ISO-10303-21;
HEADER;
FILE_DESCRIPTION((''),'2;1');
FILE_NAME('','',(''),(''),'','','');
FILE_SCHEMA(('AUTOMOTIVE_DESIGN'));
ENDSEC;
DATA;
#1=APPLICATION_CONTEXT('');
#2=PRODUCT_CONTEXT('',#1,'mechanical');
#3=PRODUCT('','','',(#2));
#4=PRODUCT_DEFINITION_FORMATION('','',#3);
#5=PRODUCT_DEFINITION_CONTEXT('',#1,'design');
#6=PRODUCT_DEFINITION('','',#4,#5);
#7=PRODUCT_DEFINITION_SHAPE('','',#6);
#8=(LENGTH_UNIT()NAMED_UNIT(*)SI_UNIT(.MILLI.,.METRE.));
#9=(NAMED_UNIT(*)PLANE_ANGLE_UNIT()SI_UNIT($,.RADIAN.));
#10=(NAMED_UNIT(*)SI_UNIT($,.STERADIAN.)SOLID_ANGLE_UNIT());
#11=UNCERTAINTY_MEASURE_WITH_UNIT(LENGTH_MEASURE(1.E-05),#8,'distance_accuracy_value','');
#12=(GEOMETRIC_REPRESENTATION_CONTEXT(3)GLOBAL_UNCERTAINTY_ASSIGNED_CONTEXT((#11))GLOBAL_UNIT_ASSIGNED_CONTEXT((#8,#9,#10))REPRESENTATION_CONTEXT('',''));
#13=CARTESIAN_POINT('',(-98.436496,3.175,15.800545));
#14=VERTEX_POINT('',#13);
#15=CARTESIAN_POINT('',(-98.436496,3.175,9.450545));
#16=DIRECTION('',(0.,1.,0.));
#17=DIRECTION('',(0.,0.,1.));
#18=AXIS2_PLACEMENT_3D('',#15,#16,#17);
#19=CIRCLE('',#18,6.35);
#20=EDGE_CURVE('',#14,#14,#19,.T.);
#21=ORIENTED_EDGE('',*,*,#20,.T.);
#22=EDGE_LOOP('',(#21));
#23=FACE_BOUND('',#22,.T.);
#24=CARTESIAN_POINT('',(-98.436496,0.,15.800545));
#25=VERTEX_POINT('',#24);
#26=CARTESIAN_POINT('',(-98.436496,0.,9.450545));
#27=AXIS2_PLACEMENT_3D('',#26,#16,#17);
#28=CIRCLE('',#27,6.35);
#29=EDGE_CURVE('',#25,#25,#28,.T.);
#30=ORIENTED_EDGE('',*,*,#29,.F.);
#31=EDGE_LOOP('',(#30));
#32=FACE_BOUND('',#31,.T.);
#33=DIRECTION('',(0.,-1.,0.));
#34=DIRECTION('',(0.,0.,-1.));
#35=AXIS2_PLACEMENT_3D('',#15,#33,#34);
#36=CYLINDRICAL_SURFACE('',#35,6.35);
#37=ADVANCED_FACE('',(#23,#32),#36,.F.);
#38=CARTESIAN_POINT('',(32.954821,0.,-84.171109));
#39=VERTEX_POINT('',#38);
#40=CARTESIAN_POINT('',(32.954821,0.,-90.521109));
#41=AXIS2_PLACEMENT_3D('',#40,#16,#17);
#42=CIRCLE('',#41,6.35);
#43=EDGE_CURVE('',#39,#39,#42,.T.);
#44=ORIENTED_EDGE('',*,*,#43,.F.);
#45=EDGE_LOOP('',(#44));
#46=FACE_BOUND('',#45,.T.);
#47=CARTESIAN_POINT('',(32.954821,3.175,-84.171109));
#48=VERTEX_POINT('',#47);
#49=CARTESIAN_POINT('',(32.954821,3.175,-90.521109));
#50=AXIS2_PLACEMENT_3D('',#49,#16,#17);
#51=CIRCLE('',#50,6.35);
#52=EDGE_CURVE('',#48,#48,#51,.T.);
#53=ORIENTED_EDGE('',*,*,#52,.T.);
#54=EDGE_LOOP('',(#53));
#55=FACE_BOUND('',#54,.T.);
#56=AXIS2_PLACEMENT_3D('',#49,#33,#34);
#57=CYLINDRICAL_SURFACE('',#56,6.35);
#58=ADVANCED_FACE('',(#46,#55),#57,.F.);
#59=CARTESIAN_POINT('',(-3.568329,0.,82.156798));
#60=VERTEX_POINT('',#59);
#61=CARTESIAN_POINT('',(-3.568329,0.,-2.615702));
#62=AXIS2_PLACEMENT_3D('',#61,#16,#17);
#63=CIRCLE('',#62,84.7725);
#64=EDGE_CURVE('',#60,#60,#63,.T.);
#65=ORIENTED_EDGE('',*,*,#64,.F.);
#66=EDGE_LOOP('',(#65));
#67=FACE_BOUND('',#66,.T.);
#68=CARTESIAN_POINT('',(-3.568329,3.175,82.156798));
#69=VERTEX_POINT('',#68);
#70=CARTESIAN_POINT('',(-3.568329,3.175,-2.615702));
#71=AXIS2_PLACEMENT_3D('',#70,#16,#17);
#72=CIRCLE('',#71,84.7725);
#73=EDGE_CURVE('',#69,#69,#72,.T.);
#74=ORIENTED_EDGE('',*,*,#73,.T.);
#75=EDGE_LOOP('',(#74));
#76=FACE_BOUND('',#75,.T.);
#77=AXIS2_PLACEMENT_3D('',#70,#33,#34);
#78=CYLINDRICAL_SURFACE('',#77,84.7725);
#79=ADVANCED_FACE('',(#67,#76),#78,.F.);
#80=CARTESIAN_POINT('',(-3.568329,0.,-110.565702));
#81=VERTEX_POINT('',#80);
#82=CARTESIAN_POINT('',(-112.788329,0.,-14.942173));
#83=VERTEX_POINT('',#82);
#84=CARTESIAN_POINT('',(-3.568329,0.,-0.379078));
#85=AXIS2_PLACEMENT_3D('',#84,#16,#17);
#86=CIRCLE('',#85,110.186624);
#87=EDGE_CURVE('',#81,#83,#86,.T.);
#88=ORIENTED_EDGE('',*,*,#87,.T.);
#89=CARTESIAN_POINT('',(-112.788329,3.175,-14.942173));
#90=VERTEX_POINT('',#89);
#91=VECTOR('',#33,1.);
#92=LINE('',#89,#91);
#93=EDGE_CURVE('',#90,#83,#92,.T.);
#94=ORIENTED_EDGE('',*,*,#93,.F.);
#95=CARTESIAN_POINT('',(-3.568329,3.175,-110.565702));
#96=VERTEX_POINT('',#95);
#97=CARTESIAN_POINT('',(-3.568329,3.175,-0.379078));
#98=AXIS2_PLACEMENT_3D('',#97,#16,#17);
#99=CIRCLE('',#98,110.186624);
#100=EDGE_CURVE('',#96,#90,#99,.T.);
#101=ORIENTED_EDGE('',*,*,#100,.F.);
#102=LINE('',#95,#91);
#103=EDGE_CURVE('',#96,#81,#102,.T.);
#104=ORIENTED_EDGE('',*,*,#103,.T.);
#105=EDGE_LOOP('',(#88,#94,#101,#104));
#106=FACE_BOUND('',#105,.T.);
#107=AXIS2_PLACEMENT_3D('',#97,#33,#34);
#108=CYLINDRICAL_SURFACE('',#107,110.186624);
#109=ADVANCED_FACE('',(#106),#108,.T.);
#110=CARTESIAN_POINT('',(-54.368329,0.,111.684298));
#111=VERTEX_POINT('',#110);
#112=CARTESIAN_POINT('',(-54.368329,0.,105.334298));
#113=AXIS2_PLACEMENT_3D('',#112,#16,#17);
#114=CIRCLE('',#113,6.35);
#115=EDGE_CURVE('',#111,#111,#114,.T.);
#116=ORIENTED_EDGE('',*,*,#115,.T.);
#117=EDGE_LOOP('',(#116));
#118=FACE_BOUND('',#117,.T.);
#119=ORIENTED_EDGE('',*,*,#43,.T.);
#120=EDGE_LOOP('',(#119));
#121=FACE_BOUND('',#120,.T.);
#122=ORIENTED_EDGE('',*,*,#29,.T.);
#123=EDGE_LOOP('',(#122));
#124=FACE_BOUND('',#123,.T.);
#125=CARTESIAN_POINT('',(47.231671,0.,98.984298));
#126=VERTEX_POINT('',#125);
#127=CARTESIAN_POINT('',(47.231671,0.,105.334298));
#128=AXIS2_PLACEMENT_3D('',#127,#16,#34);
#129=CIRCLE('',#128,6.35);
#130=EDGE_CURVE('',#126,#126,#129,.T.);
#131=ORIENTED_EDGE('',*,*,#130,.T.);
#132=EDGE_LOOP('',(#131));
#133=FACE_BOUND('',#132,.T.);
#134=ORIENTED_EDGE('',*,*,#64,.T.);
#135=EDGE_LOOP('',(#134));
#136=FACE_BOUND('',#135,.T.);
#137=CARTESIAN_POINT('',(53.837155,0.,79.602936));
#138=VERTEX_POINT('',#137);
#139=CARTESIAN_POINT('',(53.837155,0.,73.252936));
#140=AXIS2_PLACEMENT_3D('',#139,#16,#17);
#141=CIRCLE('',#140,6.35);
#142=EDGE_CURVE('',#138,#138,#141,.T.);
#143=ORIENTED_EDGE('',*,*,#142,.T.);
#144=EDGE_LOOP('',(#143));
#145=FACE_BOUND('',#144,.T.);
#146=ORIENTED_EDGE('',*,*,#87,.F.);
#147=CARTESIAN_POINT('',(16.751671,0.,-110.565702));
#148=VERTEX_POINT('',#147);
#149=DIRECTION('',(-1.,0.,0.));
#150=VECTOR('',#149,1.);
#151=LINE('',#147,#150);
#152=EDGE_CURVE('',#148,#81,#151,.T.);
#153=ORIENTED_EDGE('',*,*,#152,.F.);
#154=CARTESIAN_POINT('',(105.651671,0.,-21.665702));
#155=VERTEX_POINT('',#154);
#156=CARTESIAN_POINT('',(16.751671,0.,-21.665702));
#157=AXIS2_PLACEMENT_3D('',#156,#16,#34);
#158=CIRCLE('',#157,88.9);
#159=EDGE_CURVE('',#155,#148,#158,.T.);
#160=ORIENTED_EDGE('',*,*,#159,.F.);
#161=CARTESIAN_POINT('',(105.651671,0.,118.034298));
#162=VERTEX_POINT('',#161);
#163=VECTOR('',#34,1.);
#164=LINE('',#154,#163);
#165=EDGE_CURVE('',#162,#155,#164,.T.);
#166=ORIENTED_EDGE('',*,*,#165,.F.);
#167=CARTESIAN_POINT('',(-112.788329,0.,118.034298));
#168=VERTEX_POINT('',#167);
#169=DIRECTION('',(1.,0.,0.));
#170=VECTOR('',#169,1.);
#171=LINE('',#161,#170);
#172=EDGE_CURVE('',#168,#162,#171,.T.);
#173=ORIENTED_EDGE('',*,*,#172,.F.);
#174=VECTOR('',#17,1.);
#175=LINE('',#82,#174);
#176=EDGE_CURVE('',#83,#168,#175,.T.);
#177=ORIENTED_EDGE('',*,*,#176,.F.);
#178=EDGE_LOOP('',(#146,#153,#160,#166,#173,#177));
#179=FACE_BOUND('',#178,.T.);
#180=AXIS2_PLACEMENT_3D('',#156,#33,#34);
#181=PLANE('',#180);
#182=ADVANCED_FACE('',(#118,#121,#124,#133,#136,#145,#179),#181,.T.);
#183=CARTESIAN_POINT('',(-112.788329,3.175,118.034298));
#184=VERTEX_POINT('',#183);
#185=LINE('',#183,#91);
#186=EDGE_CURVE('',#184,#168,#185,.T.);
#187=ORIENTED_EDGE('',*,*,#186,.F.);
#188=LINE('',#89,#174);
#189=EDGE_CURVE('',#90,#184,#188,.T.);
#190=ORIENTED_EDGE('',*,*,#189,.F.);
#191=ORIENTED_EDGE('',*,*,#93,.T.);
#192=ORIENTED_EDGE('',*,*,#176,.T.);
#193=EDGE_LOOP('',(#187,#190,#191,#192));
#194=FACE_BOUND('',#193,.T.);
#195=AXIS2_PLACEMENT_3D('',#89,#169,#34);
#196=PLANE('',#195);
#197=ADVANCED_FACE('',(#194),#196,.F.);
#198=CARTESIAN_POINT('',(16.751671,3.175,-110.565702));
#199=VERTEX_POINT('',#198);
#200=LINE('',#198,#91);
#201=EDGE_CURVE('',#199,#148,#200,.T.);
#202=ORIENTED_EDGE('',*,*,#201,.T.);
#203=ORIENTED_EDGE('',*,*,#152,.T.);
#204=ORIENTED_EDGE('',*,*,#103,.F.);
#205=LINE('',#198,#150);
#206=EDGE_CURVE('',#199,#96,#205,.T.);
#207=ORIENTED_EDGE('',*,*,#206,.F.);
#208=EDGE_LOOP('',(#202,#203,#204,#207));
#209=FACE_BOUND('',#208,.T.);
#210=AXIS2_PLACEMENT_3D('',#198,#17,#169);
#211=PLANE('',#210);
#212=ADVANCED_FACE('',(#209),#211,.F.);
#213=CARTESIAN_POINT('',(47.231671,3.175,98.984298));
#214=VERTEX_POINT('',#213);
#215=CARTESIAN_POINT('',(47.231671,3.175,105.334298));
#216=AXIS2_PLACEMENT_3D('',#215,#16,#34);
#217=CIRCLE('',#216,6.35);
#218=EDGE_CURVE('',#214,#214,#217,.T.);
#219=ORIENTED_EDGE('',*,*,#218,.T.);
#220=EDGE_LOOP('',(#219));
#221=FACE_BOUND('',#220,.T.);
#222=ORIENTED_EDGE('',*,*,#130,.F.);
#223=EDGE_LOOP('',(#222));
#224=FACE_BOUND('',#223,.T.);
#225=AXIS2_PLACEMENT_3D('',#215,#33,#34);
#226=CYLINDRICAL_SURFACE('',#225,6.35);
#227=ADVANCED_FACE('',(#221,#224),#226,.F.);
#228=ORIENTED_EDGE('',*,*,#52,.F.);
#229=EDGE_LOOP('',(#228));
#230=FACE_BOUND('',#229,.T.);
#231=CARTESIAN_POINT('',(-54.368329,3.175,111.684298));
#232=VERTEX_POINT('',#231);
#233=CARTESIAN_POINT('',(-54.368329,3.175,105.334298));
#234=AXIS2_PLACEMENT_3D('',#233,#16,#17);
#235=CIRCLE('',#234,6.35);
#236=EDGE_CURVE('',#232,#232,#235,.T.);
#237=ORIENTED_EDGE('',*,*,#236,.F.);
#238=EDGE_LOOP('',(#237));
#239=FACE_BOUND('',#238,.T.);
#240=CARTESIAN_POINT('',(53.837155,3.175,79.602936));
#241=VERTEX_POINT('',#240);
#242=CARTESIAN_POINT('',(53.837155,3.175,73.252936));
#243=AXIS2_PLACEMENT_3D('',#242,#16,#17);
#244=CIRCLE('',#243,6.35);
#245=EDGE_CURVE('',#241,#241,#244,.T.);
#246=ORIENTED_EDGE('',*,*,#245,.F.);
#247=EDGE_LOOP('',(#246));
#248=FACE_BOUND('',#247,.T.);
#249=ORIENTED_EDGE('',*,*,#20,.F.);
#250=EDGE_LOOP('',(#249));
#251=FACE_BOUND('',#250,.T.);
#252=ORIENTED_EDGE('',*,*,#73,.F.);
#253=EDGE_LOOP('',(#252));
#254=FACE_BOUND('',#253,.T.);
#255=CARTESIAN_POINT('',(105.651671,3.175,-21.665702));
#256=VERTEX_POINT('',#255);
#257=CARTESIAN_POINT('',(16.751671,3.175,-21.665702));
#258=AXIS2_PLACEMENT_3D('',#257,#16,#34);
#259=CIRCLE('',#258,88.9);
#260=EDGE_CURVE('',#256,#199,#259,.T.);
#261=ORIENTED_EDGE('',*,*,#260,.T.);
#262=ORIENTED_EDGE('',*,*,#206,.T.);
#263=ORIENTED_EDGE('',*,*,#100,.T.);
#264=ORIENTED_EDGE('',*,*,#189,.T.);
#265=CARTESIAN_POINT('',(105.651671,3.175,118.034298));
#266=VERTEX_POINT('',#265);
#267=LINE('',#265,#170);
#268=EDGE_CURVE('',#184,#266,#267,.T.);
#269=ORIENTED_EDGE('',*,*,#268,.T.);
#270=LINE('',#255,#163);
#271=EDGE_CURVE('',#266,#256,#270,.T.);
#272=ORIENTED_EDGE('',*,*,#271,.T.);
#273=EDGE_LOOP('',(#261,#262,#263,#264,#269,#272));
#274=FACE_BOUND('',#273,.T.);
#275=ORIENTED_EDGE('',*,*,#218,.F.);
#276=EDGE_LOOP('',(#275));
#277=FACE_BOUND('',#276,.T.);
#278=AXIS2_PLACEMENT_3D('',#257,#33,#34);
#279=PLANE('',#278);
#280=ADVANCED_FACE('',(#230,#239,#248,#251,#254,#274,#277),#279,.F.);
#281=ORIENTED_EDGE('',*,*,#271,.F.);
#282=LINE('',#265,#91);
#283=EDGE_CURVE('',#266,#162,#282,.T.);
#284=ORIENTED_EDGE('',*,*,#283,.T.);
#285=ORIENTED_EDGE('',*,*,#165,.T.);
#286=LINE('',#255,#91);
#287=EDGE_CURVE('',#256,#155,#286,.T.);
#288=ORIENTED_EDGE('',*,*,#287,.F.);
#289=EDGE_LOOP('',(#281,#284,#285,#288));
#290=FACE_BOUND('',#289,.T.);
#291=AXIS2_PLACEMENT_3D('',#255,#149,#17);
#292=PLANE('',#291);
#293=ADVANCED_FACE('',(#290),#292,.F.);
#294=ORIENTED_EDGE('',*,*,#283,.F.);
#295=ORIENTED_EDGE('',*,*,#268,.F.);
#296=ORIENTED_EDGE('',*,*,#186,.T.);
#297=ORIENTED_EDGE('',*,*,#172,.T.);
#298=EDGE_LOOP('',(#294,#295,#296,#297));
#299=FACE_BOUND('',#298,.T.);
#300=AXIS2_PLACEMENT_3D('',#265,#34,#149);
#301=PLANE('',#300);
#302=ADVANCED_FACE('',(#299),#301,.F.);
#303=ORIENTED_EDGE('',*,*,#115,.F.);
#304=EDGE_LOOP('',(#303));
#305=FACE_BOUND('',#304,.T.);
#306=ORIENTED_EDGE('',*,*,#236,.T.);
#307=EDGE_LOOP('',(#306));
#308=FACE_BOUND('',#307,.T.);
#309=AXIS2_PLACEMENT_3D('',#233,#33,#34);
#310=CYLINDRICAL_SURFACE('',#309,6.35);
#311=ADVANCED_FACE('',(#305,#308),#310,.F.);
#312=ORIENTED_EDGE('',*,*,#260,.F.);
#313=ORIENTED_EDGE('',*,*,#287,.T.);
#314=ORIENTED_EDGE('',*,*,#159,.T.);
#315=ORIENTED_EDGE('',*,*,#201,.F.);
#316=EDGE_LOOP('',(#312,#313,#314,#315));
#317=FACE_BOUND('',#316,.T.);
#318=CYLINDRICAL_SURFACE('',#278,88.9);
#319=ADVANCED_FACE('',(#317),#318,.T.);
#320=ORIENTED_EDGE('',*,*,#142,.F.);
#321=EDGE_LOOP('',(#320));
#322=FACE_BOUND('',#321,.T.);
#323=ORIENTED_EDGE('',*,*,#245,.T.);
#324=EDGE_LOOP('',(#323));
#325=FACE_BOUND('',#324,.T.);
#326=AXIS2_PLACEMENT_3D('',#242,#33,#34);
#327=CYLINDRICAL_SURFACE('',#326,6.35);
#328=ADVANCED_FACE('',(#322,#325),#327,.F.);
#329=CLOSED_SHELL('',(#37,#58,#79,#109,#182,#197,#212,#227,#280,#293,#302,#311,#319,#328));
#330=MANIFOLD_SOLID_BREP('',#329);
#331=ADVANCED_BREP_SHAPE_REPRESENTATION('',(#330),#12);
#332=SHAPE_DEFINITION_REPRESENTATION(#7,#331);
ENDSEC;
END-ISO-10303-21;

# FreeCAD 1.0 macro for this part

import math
import FreeCAD as App
import Part
import Sketcher

V = App.Vector
Q = App.Units.Quantity

doc = App.newDocument("Part")
body = doc.addObject("PartDesign::Body", "Body")

sketch1 = body.newObject("Sketcher::SketchObject", "Sketch")
sketch1.AttachmentSupport = (doc.getObject("XZ_Plane"), [""])
sketch1.MapMode = "FlatFace"
sketch1.addGeometry([
    Part.LineSegment(V(16.751671, -110.565702, 0), V(-3.568329, -110.565702, 0)),
    Part.ArcOfCircle(Part.Circle(V(-3.568329, -0.379078, 0), V(0, 0, 1), 110.186624), math.radians(-172.405136), math.radians(-90)),
    Part.LineSegment(V(-112.788329, -14.942173, 0), V(-112.788329, 118.034298, 0)),
    Part.LineSegment(V(-112.788329, 118.034298, 0), V(105.651671, 118.034298, 0)),
    Part.LineSegment(V(105.651671, 118.034298, 0), V(105.651671, -21.665702, 0)),
    Part.ArcOfCircle(Part.Circle(V(16.751671, -21.665702, 0), V(0, 0, 1), 88.9), math.radians(-90), math.radians(0)),
    Part.Circle(V(-54.368329, 105.334298, 0), V(0, 0, 1), 6.35),
    Part.Circle(V(-98.436496, 9.450545, 0), V(0, 0, 1), 6.35),
    Part.Circle(V(47.231671, 105.334298, 0), V(0, 0, 1), 6.35),
    Part.Circle(V(53.837155, 73.252936, 0), V(0, 0, 1), 6.35),
    Part.Circle(V(-3.568329, -2.615702, 0), V(0, 0, 1), 84.7725),
    Part.Circle(V(32.954821, -90.521109, 0), V(0, 0, 1), 6.35),
], False)
sketch1.addConstraint([
    Sketcher.Constraint("Tangent", 0, 2, 1, 2),
    Sketcher.Constraint("Coincident", 1, 1, 2, 1),
    Sketcher.Constraint("Coincident", 2, 2, 3, 1),
    Sketcher.Constraint("Coincident", 3, 2, 4, 1),
    Sketcher.Constraint("Tangent", 4, 2, 5, 2),
    Sketcher.Constraint("Tangent", 5, 1, 0, 1),
    Sketcher.Constraint("Horizontal", 0),
    Sketcher.Constraint("Vertical", 2),
    Sketcher.Constraint("Horizontal", 3),
    Sketcher.Constraint("Vertical", 4),
    Sketcher.Constraint("Equal", 6, 7),
    Sketcher.Constraint("Equal", 7, 8),
    Sketcher.Constraint("Equal", 8, 9),
    Sketcher.Constraint("Equal", 9, 11),
    Sketcher.Constraint("Horizontal", 6, 3, 8, 3),
    Sketcher.Constraint("Vertical", 1, 3, 10, 3),
    Sketcher.Constraint("Diameter", 6, Q("0.5 in")),
    Sketcher.Constraint("Radius", 5, Q("3.5 in")),
    Sketcher.Constraint("Diameter", 10, Q("6.675 in")),
    Sketcher.Constraint("DistanceX", 0, 2, 0, 1, Q("0.8 in")),
    Sketcher.Constraint("DistanceX", 3, 1, 3, 2, Q("8.6 in")),
    Sketcher.Constraint("DistanceY", 4, 2, 4, 1, Q("5.5 in")),
    Sketcher.Constraint("DistanceX", 6, 3, 1, 3, Q("2 in")),
    Sketcher.Constraint("DistanceY", 5, 3, 6, 3, Q("5 in")),
    Sketcher.Constraint("DistanceX", 6, 3, 8, 3, Q("4 in")),
    Sketcher.Constraint("DistanceY", 5, 3, 10, 3, Q("0.75 in")),
    Sketcher.Constraint("Radius", 1, Q("110.186624 mm")),
    Sketcher.Constraint("DistanceY", 5, 3, -1, 1, Q("21.665702 mm")),
    Sketcher.Constraint("DistanceX", 1, 3, -1, 1, Q("3.568329 mm")),
    Sketcher.Constraint("DistanceX", -1, 1, 11, 3, Q("32.954821 mm")),
    Sketcher.Constraint("DistanceY", 11, 3, -1, 1, Q("90.521109 mm")),
    Sketcher.Constraint("DistanceY", 9, 3, 8, 3, Q("32.081362 mm")),
    Sketcher.Constraint("DistanceX", 7, 3, 9, 3, Q("152.273651 mm")),
    Sketcher.Constraint("DistanceY", 7, 3, 9, 3, Q("63.802391 mm")),
    Sketcher.Constraint("DistanceX", 7, 3, -1, 1, Q("98.436496 mm")),
])
pad1 = body.newObject("PartDesign::Pad", "Pad")
pad1.Profile = sketch1
pad1.Length = Q("0.125 in")
pad1.Reversed = True

doc.recompute()
